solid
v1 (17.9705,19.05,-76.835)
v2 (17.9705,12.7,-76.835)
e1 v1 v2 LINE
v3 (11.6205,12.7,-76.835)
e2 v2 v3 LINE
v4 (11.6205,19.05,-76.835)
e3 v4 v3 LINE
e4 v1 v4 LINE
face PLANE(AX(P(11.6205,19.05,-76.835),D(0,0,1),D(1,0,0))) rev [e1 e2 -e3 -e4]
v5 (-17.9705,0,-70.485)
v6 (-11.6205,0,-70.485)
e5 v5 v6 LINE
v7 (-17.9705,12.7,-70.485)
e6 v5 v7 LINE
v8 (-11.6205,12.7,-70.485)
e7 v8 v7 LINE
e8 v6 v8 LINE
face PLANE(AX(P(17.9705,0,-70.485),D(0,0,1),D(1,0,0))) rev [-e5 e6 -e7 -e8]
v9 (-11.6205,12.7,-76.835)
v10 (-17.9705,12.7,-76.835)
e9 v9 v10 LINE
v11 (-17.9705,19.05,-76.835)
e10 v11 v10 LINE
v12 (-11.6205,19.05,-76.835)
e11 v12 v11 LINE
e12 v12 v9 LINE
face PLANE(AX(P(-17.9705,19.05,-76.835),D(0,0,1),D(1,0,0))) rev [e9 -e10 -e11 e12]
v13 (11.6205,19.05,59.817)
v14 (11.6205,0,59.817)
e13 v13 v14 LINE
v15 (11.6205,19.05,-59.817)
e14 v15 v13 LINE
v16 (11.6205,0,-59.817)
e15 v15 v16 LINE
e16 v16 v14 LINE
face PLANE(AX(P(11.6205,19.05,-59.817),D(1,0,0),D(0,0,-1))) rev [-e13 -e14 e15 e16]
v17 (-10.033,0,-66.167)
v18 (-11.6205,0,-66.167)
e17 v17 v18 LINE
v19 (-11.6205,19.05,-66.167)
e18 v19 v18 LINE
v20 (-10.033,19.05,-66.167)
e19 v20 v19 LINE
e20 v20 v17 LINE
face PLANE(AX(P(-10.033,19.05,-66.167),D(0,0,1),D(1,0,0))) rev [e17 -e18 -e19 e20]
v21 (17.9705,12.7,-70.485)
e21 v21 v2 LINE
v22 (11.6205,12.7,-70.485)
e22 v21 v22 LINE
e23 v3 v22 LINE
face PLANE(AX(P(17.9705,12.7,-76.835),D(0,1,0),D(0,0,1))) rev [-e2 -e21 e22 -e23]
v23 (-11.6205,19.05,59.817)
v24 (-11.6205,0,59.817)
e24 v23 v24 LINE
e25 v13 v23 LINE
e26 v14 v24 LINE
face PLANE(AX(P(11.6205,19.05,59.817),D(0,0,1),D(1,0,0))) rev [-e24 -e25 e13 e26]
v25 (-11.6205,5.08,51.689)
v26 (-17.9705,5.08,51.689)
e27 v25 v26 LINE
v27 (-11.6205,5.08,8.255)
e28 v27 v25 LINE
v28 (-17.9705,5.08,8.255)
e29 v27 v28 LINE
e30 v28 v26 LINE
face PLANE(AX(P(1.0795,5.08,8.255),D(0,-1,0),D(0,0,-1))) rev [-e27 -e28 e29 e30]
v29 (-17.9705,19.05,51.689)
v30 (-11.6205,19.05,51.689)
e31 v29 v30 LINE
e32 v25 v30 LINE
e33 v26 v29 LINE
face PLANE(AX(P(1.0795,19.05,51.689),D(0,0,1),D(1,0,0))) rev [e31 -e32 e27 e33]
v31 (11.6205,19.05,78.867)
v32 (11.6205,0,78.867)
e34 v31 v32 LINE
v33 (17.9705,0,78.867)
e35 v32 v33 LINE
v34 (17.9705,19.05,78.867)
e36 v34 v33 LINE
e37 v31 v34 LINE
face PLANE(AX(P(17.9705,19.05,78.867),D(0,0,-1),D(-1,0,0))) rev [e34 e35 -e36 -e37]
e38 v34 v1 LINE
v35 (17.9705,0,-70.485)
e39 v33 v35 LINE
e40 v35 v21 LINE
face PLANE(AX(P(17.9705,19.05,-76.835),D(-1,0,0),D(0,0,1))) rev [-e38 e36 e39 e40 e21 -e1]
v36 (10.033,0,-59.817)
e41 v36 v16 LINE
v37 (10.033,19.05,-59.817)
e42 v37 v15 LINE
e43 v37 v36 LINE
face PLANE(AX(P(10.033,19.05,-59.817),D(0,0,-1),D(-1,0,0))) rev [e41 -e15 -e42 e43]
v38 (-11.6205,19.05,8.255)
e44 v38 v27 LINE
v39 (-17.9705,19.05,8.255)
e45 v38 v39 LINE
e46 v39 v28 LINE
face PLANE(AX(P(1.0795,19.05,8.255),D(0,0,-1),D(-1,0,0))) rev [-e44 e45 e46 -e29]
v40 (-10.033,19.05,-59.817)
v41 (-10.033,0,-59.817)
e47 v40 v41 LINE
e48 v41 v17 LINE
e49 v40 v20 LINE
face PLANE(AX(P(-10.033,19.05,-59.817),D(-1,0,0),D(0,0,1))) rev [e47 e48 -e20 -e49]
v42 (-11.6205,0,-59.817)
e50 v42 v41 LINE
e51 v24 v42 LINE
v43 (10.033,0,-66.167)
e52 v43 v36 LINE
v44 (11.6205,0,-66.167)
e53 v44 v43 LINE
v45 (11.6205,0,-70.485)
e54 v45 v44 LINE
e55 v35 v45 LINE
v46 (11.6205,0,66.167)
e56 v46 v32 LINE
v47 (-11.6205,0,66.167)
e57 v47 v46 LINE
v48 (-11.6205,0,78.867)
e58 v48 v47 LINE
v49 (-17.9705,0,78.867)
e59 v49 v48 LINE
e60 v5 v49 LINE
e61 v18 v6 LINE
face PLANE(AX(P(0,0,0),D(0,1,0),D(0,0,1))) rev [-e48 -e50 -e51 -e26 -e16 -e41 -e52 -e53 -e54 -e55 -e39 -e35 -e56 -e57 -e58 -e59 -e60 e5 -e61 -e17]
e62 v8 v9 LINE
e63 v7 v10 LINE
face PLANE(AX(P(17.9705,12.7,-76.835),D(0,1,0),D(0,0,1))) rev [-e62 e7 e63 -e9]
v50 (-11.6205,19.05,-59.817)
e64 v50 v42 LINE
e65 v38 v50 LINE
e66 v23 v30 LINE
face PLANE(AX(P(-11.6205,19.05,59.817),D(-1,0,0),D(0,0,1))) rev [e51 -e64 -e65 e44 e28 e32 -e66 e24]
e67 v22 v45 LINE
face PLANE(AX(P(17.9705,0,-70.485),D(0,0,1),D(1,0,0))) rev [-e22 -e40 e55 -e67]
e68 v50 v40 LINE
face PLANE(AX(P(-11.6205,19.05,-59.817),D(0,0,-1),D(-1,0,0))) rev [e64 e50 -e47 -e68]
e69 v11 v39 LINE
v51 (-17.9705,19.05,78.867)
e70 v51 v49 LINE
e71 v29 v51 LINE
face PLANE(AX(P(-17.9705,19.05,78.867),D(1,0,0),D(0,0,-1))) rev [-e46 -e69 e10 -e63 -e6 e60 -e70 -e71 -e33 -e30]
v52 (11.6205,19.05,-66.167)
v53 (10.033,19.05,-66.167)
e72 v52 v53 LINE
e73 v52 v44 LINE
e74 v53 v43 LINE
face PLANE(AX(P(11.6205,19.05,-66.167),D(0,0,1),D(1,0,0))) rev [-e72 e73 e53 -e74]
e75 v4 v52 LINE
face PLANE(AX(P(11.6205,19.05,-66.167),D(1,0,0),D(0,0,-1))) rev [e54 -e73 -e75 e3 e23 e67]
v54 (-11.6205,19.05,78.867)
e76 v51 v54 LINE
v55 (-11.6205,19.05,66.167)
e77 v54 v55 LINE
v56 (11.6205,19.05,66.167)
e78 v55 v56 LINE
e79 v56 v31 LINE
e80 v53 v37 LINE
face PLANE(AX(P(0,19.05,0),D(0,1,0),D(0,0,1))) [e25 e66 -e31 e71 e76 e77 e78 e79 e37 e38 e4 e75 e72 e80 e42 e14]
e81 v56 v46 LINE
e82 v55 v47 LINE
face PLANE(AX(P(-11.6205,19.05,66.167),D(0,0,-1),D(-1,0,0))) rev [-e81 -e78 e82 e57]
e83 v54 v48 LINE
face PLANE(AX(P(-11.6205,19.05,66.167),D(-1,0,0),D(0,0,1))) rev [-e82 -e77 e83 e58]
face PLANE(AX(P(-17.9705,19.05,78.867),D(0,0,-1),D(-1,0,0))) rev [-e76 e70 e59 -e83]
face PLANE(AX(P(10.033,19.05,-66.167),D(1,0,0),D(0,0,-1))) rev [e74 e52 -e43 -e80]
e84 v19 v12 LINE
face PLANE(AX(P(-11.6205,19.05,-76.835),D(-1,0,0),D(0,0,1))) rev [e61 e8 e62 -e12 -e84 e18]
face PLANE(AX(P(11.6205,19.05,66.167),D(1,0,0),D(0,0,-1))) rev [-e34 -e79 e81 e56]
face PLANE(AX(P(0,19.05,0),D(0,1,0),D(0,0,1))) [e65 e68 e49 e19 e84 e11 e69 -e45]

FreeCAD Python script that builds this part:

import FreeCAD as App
import Part
import Sketcher

V = App.Vector
Q = App.Units.Quantity


def add_polygon(sketch, points):
    """Adds a closed chain of lines whose ends are joined by coincident constraints."""
    first, n = sketch.GeometryCount, len(points)
    for a, b in zip(points, points[1:] + points[:1]):
        sketch.addGeometry(Part.LineSegment(App.Vector(*a, 0), App.Vector(*b, 0)), False)
    for i in range(n):
        sketch.addConstraint(Sketcher.Constraint("Coincident", first + i, 2, first + (i + 1) % n, 1))

doc = App.newDocument("Part")
params = doc.addObject("Spreadsheet::Sheet", "Params")
for row, (alias, value) in enumerate([
    ("sketch1_height", "0.5 in"),
    ("sketch1_width", "0.25 in"),
    ("sketch1_height2", "0.42 in"),
    ("sketch1_height3", "6.13 in"),
    ("sketch1_width2", "0.0625 in"),
    ("pad1_length", "0.75 in"),
    ("sketch2_width", "0.55 in"),
    ("sketch2_height", "1.71 in"),
    ("pocket1_length", "0.75 in"),
    ("sketch3_width", "0.5 in"),
    ("sketch3_height", "0.25 in"),
], start=1):
    params.set(f"A{row}", alias)
    params.set(f"B{row}", "=" + value)
    params.setAlias(f"B{row}", alias)

body = doc.addObject("PartDesign::Body", "Body")

# Sketch on XZ plane
sketch1 = body.newObject("Sketcher::SketchObject", "Sketch")
sketch1.AttachmentSupport = (doc.getObject("XZ_Plane"), [""])
sketch1.MapMode = "FlatFace"
add_polygon(sketch1, [(-10.033, -66.167), (-11.6205, -66.167), (-11.6205, -76.835), (-17.9705, -76.835), (-17.9705, 78.867), (-11.6205, 78.867), (-11.6205, 66.167), (11.6205, 66.167), (11.6205, 78.867), (17.9705, 78.867), (17.9705, -76.835), (11.6205, -76.835), (11.6205, -66.167), (10.033, -66.167), (10.033, -59.817), (11.6205, -59.817), (11.6205, 59.817), (-11.6205, 59.817), (-11.6205, -59.817), (-10.033, -59.817)])  # lines 0-19
sketch1.addConstraint([
    Sketcher.Constraint("Horizontal", 0),
    Sketcher.Constraint("Vertical", 1),
    Sketcher.Constraint("Horizontal", 2),
    Sketcher.Constraint("Vertical", 3),
    Sketcher.Constraint("Horizontal", 4),
    Sketcher.Constraint("Vertical", 5),
    Sketcher.Constraint("Horizontal", 6),
    Sketcher.Constraint("Vertical", 7),
    Sketcher.Constraint("Horizontal", 8),
    Sketcher.Constraint("Vertical", 9),
    Sketcher.Constraint("Horizontal", 10),
    Sketcher.Constraint("Vertical", 11),
    Sketcher.Constraint("Horizontal", 12),
    Sketcher.Constraint("Vertical", 13),
    Sketcher.Constraint("Horizontal", 14),
    Sketcher.Constraint("Vertical", 15),
    Sketcher.Constraint("Horizontal", 16),
    Sketcher.Constraint("Vertical", 17),
    Sketcher.Constraint("Horizontal", 18),
    Sketcher.Constraint("Vertical", 19),
    Sketcher.Constraint("Symmetric", 0, 2, 6, 2, -1, 1),
    Sketcher.Constraint("Symmetric", 5, 2, 11, 2, -1, 1),
    Sketcher.Constraint("Symmetric", 14, 2, 16, 2, -1, 1),
    Sketcher.Constraint("Symmetric", 4, 2, 7, 2, -2),
    Sketcher.Constraint("Symmetric", 2, 2, 9, 2, -2),
    Sketcher.Constraint("Symmetric", 13, 2, 18, 2, -2),
    Sketcher.Constraint("Vertical", 11, 2, 14, 2),
    Sketcher.Constraint("Equal", 10, 13),
    Sketcher.Constraint("DistanceY", 5, 2, 5, 1, Q("0.5 in")),
    Sketcher.Constraint("DistanceX", 2, 2, 2, 1, Q("0.25 in")),
    Sketcher.Constraint("DistanceY", 1, 2, 1, 1, Q("0.42 in")),
    Sketcher.Constraint("DistanceY", 3, 1, 3, 2, Q("6.13 in")),
    Sketcher.Constraint("DistanceX", 0, 2, 0, 1, Q("0.0625 in")),
    Sketcher.Constraint("DistanceX", 6, 1, 6, 2, Q("0.915 in")),
])
sketch1.setExpression("Constraints[48]", "Params.sketch1_height")
sketch1.setExpression("Constraints[49]", "Params.sketch1_width")
sketch1.setExpression("Constraints[50]", "Params.sketch1_height2")
sketch1.setExpression("Constraints[51]", "Params.sketch1_height3")
sketch1.setExpression("Constraints[52]", "Params.sketch1_width2")
pad1 = body.newObject("PartDesign::Pad", "Pad")
pad1.Profile = sketch1
pad1.setExpression("Length", "Params.pad1_length")
pad1.Reversed = True

# Sketch on YZ plane
sketch2 = body.newObject("Sketcher::SketchObject", "Sketch001")
sketch2.AttachmentSupport = (doc.getObject("YZ_Plane"), [""])
sketch2.MapMode = "FlatFace"
sketch2.AttachmentOffset = App.Placement(V(0, 0, -0.7075 * 25.4), App.Rotation())
add_polygon(sketch2, [(19.05, 8.255), (5.08, 8.255), (5.08, 51.689), (19.05, 51.689)])  # lines 0-3
sketch2.addConstraint([
    Sketcher.Constraint("Horizontal", 0),
    Sketcher.Constraint("Vertical", 1),
    Sketcher.Constraint("Horizontal", 2),
    Sketcher.Constraint("Vertical", 3),
    Sketcher.Constraint("DistanceX", 0, 2, 0, 1, Q("0.55 in")),
    Sketcher.Constraint("DistanceY", 1, 1, 1, 2, Q("1.71 in")),
    Sketcher.Constraint("DistanceX", -1, 1, 0, 2, Q("0.2 in")),
    Sketcher.Constraint("DistanceY", -1, 1, 0, 2, Q("0.325 in")),
])
sketch2.setExpression("Constraints[8]", "Params.sketch2_width")
sketch2.setExpression("Constraints[9]", "Params.sketch2_height")
pocket1 = body.newObject("PartDesign::Pocket", "Pocket")
pocket1.Profile = sketch2
pocket1.setExpression("Length", "Params.pocket1_length")
pocket1.Reversed = True

# Sketch on YZ plane
sketch3 = body.newObject("Sketcher::SketchObject", "Sketch002")
sketch3.AttachmentSupport = (doc.getObject("YZ_Plane"), [""])
sketch3.MapMode = "FlatFace"
sketch3.AttachmentOffset = App.Placement(V(0, 0, -0.7075 * 25.4), App.Rotation())
add_polygon(sketch3, [(12.7, -76.835), (0, -76.835), (0, -70.485), (12.7, -70.485)])  # lines 0-3
sketch3.addConstraint([
    Sketcher.Constraint("Horizontal", 0),
    Sketcher.Constraint("Vertical", 1),
    Sketcher.Constraint("Horizontal", 2),
    Sketcher.Constraint("Vertical", 3),
    Sketcher.Constraint("PointOnObject", 0, 2, -2),
    Sketcher.Constraint("DistanceX", 0, 2, 0, 1, Q("0.5 in")),
    Sketcher.Constraint("DistanceY", 1, 1, 1, 2, Q("0.25 in")),
    Sketcher.Constraint("DistanceY", 0, 2, -1, 1, Q("3.025 in")),
])
sketch3.setExpression("Constraints[9]", "Params.sketch3_width")
sketch3.setExpression("Constraints[10]", "Params.sketch3_height")
pocket2 = body.newObject("PartDesign::Pocket", "Pocket001")
pocket2.Profile = sketch3
pocket2.Type = "ThroughAll"
pocket2.Reversed = True

doc.recompute()
